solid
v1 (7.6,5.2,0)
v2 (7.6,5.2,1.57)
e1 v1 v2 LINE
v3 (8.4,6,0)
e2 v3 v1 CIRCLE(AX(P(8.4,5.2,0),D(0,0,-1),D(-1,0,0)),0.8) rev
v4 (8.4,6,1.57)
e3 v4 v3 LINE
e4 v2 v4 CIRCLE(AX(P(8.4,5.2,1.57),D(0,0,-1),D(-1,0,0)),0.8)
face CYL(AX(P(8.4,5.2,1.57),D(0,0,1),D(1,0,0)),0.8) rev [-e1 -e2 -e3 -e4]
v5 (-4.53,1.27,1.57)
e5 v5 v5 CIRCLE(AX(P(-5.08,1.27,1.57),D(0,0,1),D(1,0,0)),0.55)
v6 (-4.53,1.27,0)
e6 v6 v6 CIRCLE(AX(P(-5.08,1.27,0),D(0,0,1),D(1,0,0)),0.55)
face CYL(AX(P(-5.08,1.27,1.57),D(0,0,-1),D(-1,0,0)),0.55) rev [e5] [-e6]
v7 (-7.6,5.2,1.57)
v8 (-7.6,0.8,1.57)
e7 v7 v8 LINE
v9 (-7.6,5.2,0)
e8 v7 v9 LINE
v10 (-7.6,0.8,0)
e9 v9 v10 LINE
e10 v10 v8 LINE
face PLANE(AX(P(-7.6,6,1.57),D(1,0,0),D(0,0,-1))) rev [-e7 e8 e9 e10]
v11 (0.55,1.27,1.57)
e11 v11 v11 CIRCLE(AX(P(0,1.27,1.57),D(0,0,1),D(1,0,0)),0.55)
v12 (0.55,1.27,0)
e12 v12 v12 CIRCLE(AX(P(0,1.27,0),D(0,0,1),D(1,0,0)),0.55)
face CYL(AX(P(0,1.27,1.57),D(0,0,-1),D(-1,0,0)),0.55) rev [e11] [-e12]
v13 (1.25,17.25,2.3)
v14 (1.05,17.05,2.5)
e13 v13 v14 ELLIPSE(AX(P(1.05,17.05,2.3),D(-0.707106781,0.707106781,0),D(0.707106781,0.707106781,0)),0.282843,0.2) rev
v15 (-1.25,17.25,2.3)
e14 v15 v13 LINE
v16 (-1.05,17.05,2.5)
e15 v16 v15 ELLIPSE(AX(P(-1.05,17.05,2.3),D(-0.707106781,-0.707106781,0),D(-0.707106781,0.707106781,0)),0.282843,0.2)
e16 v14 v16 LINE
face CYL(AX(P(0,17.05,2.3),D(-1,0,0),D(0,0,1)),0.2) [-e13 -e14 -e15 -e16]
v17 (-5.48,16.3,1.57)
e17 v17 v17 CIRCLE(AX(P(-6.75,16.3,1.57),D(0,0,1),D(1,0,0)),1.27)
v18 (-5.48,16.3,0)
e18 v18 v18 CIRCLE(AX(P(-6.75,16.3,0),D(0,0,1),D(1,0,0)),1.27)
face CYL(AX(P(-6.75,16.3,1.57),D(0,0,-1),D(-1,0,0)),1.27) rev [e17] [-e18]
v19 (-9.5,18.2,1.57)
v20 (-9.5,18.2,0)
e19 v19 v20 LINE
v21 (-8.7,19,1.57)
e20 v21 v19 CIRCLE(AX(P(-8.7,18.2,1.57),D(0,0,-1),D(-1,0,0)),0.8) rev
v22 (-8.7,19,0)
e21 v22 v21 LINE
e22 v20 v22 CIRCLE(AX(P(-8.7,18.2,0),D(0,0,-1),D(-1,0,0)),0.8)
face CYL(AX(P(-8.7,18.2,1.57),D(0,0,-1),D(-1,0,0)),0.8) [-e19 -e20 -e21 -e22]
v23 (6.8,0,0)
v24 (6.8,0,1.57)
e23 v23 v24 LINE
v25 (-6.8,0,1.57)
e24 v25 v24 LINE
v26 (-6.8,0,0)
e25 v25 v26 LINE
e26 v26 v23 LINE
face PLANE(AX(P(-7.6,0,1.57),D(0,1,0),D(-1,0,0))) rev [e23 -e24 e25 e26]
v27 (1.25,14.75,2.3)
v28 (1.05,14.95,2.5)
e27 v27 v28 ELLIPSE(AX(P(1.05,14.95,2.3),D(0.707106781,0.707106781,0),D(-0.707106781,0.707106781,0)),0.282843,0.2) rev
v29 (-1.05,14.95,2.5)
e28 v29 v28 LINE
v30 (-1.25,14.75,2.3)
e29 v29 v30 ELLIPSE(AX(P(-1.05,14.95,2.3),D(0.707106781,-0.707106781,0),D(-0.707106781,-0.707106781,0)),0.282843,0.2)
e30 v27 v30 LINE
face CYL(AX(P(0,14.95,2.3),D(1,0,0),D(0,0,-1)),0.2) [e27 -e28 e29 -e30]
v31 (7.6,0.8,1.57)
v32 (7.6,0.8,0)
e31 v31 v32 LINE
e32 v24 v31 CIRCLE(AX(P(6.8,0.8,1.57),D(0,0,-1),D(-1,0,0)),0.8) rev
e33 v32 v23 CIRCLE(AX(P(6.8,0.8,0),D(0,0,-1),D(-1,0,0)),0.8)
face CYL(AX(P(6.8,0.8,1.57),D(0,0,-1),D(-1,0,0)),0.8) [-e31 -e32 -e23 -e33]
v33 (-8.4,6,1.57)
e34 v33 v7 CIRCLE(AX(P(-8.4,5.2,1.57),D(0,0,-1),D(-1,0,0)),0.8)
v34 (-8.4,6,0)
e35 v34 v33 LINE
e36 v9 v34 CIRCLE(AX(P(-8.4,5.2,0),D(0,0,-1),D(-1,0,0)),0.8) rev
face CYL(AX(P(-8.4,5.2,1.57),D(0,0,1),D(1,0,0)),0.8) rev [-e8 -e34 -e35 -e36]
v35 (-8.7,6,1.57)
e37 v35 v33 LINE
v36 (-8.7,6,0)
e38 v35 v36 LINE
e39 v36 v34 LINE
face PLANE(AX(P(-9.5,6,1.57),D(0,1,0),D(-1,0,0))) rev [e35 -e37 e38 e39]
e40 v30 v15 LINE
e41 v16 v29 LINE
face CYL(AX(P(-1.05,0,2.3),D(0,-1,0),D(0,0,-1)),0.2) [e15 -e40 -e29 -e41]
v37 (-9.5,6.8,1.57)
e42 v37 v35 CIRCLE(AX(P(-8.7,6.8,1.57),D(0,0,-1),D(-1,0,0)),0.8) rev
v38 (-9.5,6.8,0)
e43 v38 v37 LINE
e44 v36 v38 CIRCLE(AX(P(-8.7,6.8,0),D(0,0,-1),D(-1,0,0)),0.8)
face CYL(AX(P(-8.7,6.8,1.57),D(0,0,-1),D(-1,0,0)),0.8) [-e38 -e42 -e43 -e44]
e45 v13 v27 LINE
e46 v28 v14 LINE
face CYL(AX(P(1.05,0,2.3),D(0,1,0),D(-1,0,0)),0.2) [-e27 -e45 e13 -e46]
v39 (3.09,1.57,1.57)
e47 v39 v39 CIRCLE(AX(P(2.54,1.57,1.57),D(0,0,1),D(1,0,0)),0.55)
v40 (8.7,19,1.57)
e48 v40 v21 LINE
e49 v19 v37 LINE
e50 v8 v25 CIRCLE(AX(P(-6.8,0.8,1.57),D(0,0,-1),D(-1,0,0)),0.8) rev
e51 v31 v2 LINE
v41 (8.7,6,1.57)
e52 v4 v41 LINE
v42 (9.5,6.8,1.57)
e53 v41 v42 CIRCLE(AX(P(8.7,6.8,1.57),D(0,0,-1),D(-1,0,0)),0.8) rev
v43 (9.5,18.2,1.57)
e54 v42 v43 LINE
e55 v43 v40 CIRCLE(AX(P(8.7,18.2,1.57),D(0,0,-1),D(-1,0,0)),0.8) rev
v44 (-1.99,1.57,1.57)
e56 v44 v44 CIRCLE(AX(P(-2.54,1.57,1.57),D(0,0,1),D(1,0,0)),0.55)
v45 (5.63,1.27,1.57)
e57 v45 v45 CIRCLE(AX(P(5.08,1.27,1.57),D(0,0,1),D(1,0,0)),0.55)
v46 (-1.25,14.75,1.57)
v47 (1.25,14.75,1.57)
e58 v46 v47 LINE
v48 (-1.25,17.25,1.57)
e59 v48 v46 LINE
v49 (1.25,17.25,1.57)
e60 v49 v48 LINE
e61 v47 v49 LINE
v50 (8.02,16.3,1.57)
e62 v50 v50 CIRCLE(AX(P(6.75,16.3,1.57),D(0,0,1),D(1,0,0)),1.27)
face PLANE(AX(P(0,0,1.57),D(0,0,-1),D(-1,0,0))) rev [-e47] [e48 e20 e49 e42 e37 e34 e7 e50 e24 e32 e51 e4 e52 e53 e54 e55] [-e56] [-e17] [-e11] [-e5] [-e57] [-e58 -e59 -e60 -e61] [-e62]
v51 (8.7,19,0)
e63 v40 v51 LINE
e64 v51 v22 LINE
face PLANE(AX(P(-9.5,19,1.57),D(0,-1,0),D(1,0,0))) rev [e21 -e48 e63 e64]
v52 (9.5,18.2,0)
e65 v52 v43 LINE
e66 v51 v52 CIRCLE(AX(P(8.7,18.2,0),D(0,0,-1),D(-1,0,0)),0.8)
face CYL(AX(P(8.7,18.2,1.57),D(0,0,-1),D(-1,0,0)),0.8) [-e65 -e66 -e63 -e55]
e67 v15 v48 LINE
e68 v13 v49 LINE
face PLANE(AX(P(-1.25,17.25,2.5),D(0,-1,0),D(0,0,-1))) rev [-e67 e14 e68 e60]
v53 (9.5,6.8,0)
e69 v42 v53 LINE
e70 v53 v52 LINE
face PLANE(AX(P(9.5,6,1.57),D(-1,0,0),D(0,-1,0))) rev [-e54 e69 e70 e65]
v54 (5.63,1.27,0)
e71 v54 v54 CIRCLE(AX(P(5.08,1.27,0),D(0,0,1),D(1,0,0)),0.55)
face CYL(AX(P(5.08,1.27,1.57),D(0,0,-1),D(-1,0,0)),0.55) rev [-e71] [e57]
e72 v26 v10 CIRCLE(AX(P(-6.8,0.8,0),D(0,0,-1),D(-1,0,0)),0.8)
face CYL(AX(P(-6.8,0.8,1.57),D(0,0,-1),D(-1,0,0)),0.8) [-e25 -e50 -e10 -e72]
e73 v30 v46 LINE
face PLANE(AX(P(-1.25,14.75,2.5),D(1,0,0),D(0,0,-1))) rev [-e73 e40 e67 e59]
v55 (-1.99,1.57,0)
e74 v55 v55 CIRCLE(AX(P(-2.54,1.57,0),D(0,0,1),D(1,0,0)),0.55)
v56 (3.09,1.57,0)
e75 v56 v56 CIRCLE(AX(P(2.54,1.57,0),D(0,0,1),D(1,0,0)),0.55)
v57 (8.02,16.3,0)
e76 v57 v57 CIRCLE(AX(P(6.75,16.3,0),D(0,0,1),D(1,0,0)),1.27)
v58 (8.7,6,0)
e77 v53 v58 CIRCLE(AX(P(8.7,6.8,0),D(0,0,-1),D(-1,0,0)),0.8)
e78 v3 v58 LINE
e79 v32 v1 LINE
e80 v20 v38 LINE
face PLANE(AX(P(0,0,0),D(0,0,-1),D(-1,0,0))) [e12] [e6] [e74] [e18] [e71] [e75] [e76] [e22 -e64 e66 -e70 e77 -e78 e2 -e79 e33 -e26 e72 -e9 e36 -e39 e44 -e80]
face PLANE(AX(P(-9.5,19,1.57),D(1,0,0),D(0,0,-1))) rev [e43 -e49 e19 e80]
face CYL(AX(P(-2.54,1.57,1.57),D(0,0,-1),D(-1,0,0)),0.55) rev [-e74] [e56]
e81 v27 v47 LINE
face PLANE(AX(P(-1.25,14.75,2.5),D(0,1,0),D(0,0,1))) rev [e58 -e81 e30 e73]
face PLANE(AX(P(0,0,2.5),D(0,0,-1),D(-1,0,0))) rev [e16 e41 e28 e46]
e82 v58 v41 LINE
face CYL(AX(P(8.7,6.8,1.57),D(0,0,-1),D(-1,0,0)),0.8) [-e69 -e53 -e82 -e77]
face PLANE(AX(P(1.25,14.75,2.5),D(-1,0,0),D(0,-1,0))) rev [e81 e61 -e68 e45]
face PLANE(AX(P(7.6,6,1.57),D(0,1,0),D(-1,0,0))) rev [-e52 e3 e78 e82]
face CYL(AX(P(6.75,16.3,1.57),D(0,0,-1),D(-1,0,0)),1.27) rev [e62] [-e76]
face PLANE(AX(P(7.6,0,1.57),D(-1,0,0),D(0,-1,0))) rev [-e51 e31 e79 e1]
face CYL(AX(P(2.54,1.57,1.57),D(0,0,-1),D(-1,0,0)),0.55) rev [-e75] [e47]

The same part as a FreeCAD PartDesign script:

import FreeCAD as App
import Part
import Sketcher

V = App.Vector
Q = App.Units.Quantity


def edges_at(feature, points):
    """Names of the edges that pass closest to the given points."""
    edges = feature.Shape.Edges
    near = lambda p: min(range(len(edges)), key=lambda i: edges[i].distToShape(Part.Vertex(*p))[0])
    return sorted({f"Edge{near(p) + 1}" for p in points})

doc = App.newDocument("Part")
body = doc.addObject("PartDesign::Body", "Body")

# Sketch on XY plane
sketch1 = body.newObject("Sketcher::SketchObject", "Sketch")
sketch1.AttachmentSupport = (doc.getObject("XY_Plane"), [""])
sketch1.MapMode = "FlatFace"
sketch1.addGeometry([
    Part.LineSegment(V(-9.5, 19, 0), V(-9.5, 6, 0)),  # 0
    Part.LineSegment(V(-9.5, 6, 0), V(-7.6, 6, 0)),  # 1
    Part.LineSegment(V(-7.6, 6, 0), V(-7.6, 0, 0)),  # 2
    Part.LineSegment(V(-7.6, 0, 0), V(7.6, 0, 0)),  # 3
    Part.LineSegment(V(7.6, 0, 0), V(7.6, 6, 0)),  # 4
    Part.LineSegment(V(7.6, 6, 0), V(9.5, 6, 0)),  # 5
    Part.LineSegment(V(9.5, 6, 0), V(9.5, 19, 0)),  # 6
    Part.LineSegment(V(9.5, 19, 0), V(-9.5, 19, 0)),  # 7
    Part.Circle(V(-5.1, 1.3, 0), V(0, 0, 1), 0.6),  # 8
    Part.Circle(V(-2.5, 1.6, 0), V(0, 0, 1), 0.6),  # 9
    Part.Circle(V(0, 1.3, 0), V(0, 0, 1), 0.6),  # 10
    Part.Circle(V(2.5, 1.6, 0), V(0, 0, 1), 0.6),  # 11
    Part.Circle(V(5.1, 1.3, 0), V(0, 0, 1), 0.6),  # 12
    Part.Circle(V(-6.8, 16.3, 0), V(0, 0, 1), 1.3),  # 13
    Part.Circle(V(6.8, 16.3, 0), V(0, 0, 1), 1.3),  # 14
], False)
sketch1.addConstraint([
    Sketcher.Constraint("Coincident", 0, 2, 1, 1),
    Sketcher.Constraint("Coincident", 1, 2, 2, 1),
    Sketcher.Constraint("Coincident", 2, 2, 3, 1),
    Sketcher.Constraint("Coincident", 3, 2, 4, 1),
    Sketcher.Constraint("Coincident", 4, 2, 5, 1),
    Sketcher.Constraint("Coincident", 5, 2, 6, 1),
    Sketcher.Constraint("Coincident", 6, 2, 7, 1),
    Sketcher.Constraint("Coincident", 7, 2, 0, 1),
    Sketcher.Constraint("Vertical", 0),
    Sketcher.Constraint("Horizontal", 1),
    Sketcher.Constraint("Vertical", 2),
    Sketcher.Constraint("Horizontal", 3),
    Sketcher.Constraint("Vertical", 4),
    Sketcher.Constraint("Horizontal", 5),
    Sketcher.Constraint("Vertical", 6),
    Sketcher.Constraint("Horizontal", 7),
    Sketcher.Constraint("Equal", 8, 9),
    Sketcher.Constraint("Equal", 9, 10),
    Sketcher.Constraint("Equal", 10, 11),
    Sketcher.Constraint("Equal", 11, 12),
    Sketcher.Constraint("Equal", 13, 14),
    Sketcher.Constraint("Symmetric", 2, 2, 3, 2, -1, 1),
    Sketcher.Constraint("Symmetric", 9, 3, 11, 3, -2),
    Sketcher.Constraint("Symmetric", 8, 3, 12, 3, -2),
    Sketcher.Constraint("Symmetric", 13, 3, 14, 3, -2),
    Sketcher.Constraint("Symmetric", 0, 2, 5, 2, -2),
    Sketcher.Constraint("PointOnObject", 10, 3, -2),
    Sketcher.Constraint("Horizontal", 8, 3, 10, 3),
    Sketcher.Constraint("Diameter", 8, Q("1.1 mm")),
    Sketcher.Constraint("Diameter", 13, Q("2.54 mm")),
    Sketcher.Constraint("DistanceX", 7, 2, 7, 1, Q("19 mm")),
    Sketcher.Constraint("DistanceY", 0, 2, 0, 1, Q("13 mm")),
    Sketcher.Constraint("DistanceY", 2, 2, 2, 1, Q("6 mm")),
    Sketcher.Constraint("DistanceX", 1, 1, 1, 2, Q("1.9 mm")),
    Sketcher.Constraint("DistanceY", -1, 1, 13, 3, Q("16.3 mm")),
    Sketcher.Constraint("DistanceY", 8, 3, 9, 3, Q("0.3 mm")),
    Sketcher.Constraint("DistanceX", 13, 3, 14, 3, Q("13.5 mm")),
    Sketcher.Constraint("DistanceX", 8, 3, -1, 1, Q("5.08 mm")),
    Sketcher.Constraint("DistanceY", -1, 1, 8, 3, Q("1.27 mm")),
    Sketcher.Constraint("DistanceX", 9, 3, -1, 1, Q("2.54 mm")),
])
pad1 = body.newObject("PartDesign::Pad", "Pad")
pad1.Profile = sketch1
pad1.Length = 1.57
doc.recompute()

fillet = body.newObject("PartDesign::Fillet", "Fillet")
fillet.Base = (pad1, edges_at(pad1, [
    (9.5, 6, 0.785),
    (7.6, 6, 0.785),
    (7.6, 0, 0.785),
    (-7.6, 0, 0.785),
    (-7.6, 6, 0.785),
    (-9.5, 6, 0.785),
    (-9.5, 19, 0.785),
    (9.5, 19, 0.785),
]))
fillet.Radius = 0.8

# Sketch on XY plane
sketch2 = body.newObject("Sketcher::SketchObject", "Sketch001")
sketch2.AttachmentSupport = (doc.getObject("XY_Plane"), [""])
sketch2.MapMode = "FlatFace"
sketch2.AttachmentOffset = App.Placement(V(0, 0, 1.57), App.Rotation())
sketch2.addGeometry([
    Part.LineSegment(V(-1.2, 17.2, 0), V(-1.2, 14.8, 0)),
    Part.LineSegment(V(-1.2, 14.8, 0), V(1.2, 14.8, 0)),
    Part.LineSegment(V(1.2, 14.8, 0), V(1.2, 17.2, 0)),
    Part.LineSegment(V(1.2, 17.2, 0), V(-1.2, 17.2, 0)),
], False)
sketch2.addConstraint([
    Sketcher.Constraint("Coincident", 0, 2, 1, 1),
    Sketcher.Constraint("Coincident", 1, 2, 2, 1),
    Sketcher.Constraint("Coincident", 2, 2, 3, 1),
    Sketcher.Constraint("Coincident", 3, 2, 0, 1),
    Sketcher.Constraint("Vertical", 0),
    Sketcher.Constraint("Horizontal", 1),
    Sketcher.Constraint("Vertical", 2),
    Sketcher.Constraint("Horizontal", 3),
    Sketcher.Constraint("Equal", 3, 0),
    Sketcher.Constraint("DistanceX", 1, 1, 1, 2, Q("2.5 mm")),
    Sketcher.Constraint("DistanceX", 0, 2, -1, 1, Q("1.25 mm")),
    Sketcher.Constraint("DistanceY", -1, 1, 0, 2, Q("14.75 mm")),
])
pad2 = body.newObject("PartDesign::Pad", "Pad001")
pad2.Profile = sketch2
pad2.Length = 0.93
doc.recompute()

fillet2 = body.newObject("PartDesign::Fillet", "Fillet001")
fillet2.Base = (pad2, edges_at(pad2, [
    (1.25, 16, 2.5),
    (0, 17.25, 2.5),
    (-1.25, 16, 2.5),
    (0, 14.75, 2.5),
]))
fillet2.Radius = 0.2

doc.recompute()
